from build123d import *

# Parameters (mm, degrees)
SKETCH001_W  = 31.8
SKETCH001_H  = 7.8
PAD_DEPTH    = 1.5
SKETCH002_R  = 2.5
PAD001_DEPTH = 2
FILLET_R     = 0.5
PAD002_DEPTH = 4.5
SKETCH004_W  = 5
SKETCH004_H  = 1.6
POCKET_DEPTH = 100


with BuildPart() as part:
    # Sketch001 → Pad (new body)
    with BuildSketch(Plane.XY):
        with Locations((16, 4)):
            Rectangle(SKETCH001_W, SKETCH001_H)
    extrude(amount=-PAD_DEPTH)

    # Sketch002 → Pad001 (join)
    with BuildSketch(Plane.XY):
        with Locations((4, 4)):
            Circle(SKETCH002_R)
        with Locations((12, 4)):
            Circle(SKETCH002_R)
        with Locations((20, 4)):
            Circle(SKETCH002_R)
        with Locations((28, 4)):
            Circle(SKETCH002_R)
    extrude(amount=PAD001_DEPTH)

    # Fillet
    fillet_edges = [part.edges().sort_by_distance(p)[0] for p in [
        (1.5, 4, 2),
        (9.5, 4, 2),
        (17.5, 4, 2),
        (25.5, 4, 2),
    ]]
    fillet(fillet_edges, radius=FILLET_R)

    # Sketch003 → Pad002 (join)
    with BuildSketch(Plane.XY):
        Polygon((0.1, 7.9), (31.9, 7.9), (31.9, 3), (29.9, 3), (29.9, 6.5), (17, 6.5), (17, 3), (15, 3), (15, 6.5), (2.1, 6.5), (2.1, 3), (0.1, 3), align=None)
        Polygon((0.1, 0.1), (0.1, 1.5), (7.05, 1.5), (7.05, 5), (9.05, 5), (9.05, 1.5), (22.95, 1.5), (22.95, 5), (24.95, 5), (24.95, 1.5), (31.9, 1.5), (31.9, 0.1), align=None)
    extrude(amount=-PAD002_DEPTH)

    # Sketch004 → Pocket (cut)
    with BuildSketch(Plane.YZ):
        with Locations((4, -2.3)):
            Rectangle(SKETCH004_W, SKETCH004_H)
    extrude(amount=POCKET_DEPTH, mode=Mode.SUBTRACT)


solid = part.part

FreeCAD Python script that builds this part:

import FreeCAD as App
import Part
import Sketcher

V = App.Vector
Q = App.Units.Quantity


def edges_at(feature, points):
    """Names of the edges that pass closest to the given points."""
    edges = feature.Shape.Edges
    near = lambda p: min(range(len(edges)), key=lambda i: edges[i].distToShape(Part.Vertex(*p))[0])
    return sorted({f"Edge{near(p) + 1}" for p in points})


def add_polygon(sketch, points):
    """Adds a closed chain of lines whose ends are joined by coincident constraints."""
    first, n = sketch.GeometryCount, len(points)
    for a, b in zip(points, points[1:] + points[:1]):
        sketch.addGeometry(Part.LineSegment(App.Vector(*a, 0), App.Vector(*b, 0)), False)
    for i in range(n):
        sketch.addConstraint(Sketcher.Constraint("Coincident", first + i, 2, first + (i + 1) % n, 1))

doc = App.newDocument("Part")
body = doc.addObject("PartDesign::Body", "Body")

# Sketch on XY plane
sketch1 = doc.addObject("Sketcher::SketchObject", "Sketch")
body.addObject(sketch1)
sketch1.AttachmentSupport = (doc.XY_Plane, [""])
sketch1.MapMode = "FlatFace"
add_polygon(sketch1, [(0, 8), (0, 0), (32, 0), (32, 8)])  # lines 0-3
sketch1.addConstraint([
    Sketcher.Constraint("Vertical", 0),
    Sketcher.Constraint("Horizontal", 1),
    Sketcher.Constraint("Vertical", 2),
    Sketcher.Constraint("Horizontal", 3),
    Sketcher.Constraint("DistanceX", 1, 1, 1, 2, Q("31.8 mm")),
    Sketcher.Constraint("DistanceY", 0, 2, 0, 1, Q("7.8 mm")),
    Sketcher.Constraint("DistanceX", -1, 1, 0, 2, Q("0.1 mm")),
    Sketcher.Constraint("DistanceY", -1, 1, 0, 2, Q("0.1 mm")),
])
pad1 = doc.addObject("PartDesign::Pad", "Pad")
body.addObject(pad1)
pad1.Profile = sketch1
pad1.Length = 1.5
pad1.Reversed = True

# Sketch on XY plane
sketch2 = doc.addObject("Sketcher::SketchObject", "Sketch001")
body.addObject(sketch2)
sketch2.AttachmentSupport = (doc.XY_Plane, [""])
sketch2.MapMode = "FlatFace"
sketch2.addGeometry([
    Part.Circle(V(4, 4, 0), V(0, 0, 1), 2.5),
    Part.Circle(V(12, 4, 0), V(0, 0, 1), 2.5),
    Part.Circle(V(20, 4, 0), V(0, 0, 1), 2.5),
    Part.Circle(V(28, 4, 0), V(0, 0, 1), 2.5),
], False)
sketch2.addConstraint([
    Sketcher.Constraint("Equal", 0, 1),
    Sketcher.Constraint("Equal", 1, 2),
    Sketcher.Constraint("Equal", 2, 3),
    Sketcher.Constraint("Horizontal", 0, 3, 1, 3),
    Sketcher.Constraint("Horizontal", 1, 3, 2, 3),
    Sketcher.Constraint("Horizontal", 2, 3, 3, 3),
    Sketcher.Constraint("Diameter", 0, Q("5 mm")),
    Sketcher.Constraint("DistanceX", -1, 1, 0, 3, Q("4 mm")),
    Sketcher.Constraint("DistanceY", -1, 1, 0, 3, Q("4 mm")),
    Sketcher.Constraint("DistanceX", -1, 1, 1, 3, Q("12 mm")),
    Sketcher.Constraint("DistanceX", -1, 1, 2, 3, Q("20 mm")),
    Sketcher.Constraint("DistanceX", -1, 1, 3, 3, Q("28 mm")),
])
pad2 = doc.addObject("PartDesign::Pad", "Pad001")
body.addObject(pad2)
pad2.Profile = sketch2
pad2.Length = 2
doc.recompute()

fillet = doc.addObject("PartDesign::Fillet", "Fillet")
body.addObject(fillet)
fillet.Base = (pad2, edges_at(pad2, [
    (1.5, 4, 2),
    (9.5, 4, 2),
    (17.5, 4, 2),
    (25.5, 4, 2),
]))
fillet.Radius = 0.5

# Sketch on XY plane
sketch3 = doc.addObject("Sketcher::SketchObject", "Sketch002")
body.addObject(sketch3)
sketch3.AttachmentSupport = (doc.XY_Plane, [""])
sketch3.MapMode = "FlatFace"
add_polygon(sketch3, [(31.9, 7.9), (0.1, 7.9), (0.1, 3), (2.1, 3), (2.1, 6.5), (15, 6.5), (15, 3), (17, 3), (17, 6.5), (29.9, 6.5), (29.9, 3), (31.9, 3)])  # lines 0-11
add_polygon(sketch3, [(0.1, 1.5), (0.1, 0.1), (31.9, 0.1), (31.9, 1.5), (24.9, 1.5), (24.9, 5), (22.9, 5), (22.9, 1.5), (9.1, 1.5), (9.1, 5), (7, 5), (7, 1.5)])  # lines 12-23
sketch3.addConstraint([
    Sketcher.Constraint("Horizontal", 0),
    Sketcher.Constraint("Vertical", 1),
    Sketcher.Constraint("Horizontal", 2),
    Sketcher.Constraint("Vertical", 3),
    Sketcher.Constraint("Horizontal", 4),
    Sketcher.Constraint("Vertical", 5),
    Sketcher.Constraint("Horizontal", 6),
    Sketcher.Constraint("Vertical", 7),
    Sketcher.Constraint("Horizontal", 8),
    Sketcher.Constraint("Vertical", 9),
    Sketcher.Constraint("Horizontal", 10),
    Sketcher.Constraint("Vertical", 11),
    Sketcher.Constraint("Vertical", 12),
    Sketcher.Constraint("Horizontal", 13),
    Sketcher.Constraint("Vertical", 14),
    Sketcher.Constraint("Horizontal", 15),
    Sketcher.Constraint("Vertical", 16),
    Sketcher.Constraint("Horizontal", 17),
    Sketcher.Constraint("Vertical", 18),
    Sketcher.Constraint("Horizontal", 19),
    Sketcher.Constraint("Vertical", 20),
    Sketcher.Constraint("Horizontal", 21),
    Sketcher.Constraint("Vertical", 22),
    Sketcher.Constraint("Horizontal", 23),
    Sketcher.Constraint("Horizontal", 2, 2, 5, 2),
    Sketcher.Constraint("Horizontal", 4, 2, 7, 2),
    Sketcher.Constraint("Horizontal", 6, 2, 9, 2),
    Sketcher.Constraint("Horizontal", 15, 2, 18, 2),
    Sketcher.Constraint("Horizontal", 17, 2, 20, 2),
    Sketcher.Constraint("Horizontal", 19, 2, 22, 2),
    Sketcher.Constraint("Vertical", 1, 2, 12, 2),
    Sketcher.Constraint("Vertical", 11, 2, 13, 2),
    Sketcher.Constraint("Equal", 2, 6),
    Sketcher.Constraint("Equal", 4, 8),
    Sketcher.Constraint("Equal", 6, 10),
    Sketcher.Constraint("Equal", 10, 17),
    Sketcher.Constraint("Equal", 17, 21),
    Sketcher.Constraint("Equal", 15, 23),
    Sketcher.Constraint("Equal", 9, 16),
    Sketcher.Constraint("DistanceX", 2, 1, 2, 2, Q("2 mm")),
    Sketcher.Constraint("DistanceX", 0, 2, 0, 1, Q("31.8 mm")),
    Sketcher.Constraint("DistanceX", 19, 2, 19, 1, Q("13.9 mm")),
    Sketcher.Constraint("DistanceY", 1, 2, 1, 1, Q("4.9 mm")),
    Sketcher.Constraint("DistanceY", 3, 1, 3, 2, Q("3.5 mm")),
    Sketcher.Constraint("DistanceY", 12, 2, 12, 1, Q("1.4 mm")),
    Sketcher.Constraint("DistanceY", -1, 1, 1, 2, Q("3 mm")),
    Sketcher.Constraint("DistanceX", -1, 1, 4, 2, Q("15 mm")),
    Sketcher.Constraint("DistanceY", -1, 1, 16, 2, Q("5 mm")),
])
pad3 = doc.addObject("PartDesign::Pad", "Pad002")
body.addObject(pad3)
pad3.Profile = sketch3
pad3.Length = 4.5
pad3.Reversed = True

# Sketch on YZ plane
sketch4 = doc.addObject("Sketcher::SketchObject", "Sketch003")
body.addObject(sketch4)
sketch4.AttachmentSupport = (doc.YZ_Plane, [""])
sketch4.MapMode = "FlatFace"
add_polygon(sketch4, [(1.5, -1.5), (1.5, -3.1), (6.5, -3.1), (6.5, -1.5)])  # lines 0-3
sketch4.addConstraint([
    Sketcher.Constraint("Vertical", 0),
    Sketcher.Constraint("Horizontal", 1),
    Sketcher.Constraint("Vertical", 2),
    Sketcher.Constraint("Horizontal", 3),
    Sketcher.Constraint("DistanceX", 1, 1, 1, 2, Q("5 mm")),
    Sketcher.Constraint("DistanceY", 0, 2, 0, 1, Q("1.6 mm")),
    Sketcher.Constraint("DistanceX", -1, 1, 0, 2, Q("1.5 mm")),
    Sketcher.Constraint("DistanceY", 0, 2, -1, 1, Q("3.1 mm")),
])
pocket1 = doc.addObject("PartDesign::Pocket", "Pocket")
body.addObject(pocket1)
pocket1.Profile = sketch4
pocket1.Length = 100
pocket1.Reversed = True

doc.recompute()
